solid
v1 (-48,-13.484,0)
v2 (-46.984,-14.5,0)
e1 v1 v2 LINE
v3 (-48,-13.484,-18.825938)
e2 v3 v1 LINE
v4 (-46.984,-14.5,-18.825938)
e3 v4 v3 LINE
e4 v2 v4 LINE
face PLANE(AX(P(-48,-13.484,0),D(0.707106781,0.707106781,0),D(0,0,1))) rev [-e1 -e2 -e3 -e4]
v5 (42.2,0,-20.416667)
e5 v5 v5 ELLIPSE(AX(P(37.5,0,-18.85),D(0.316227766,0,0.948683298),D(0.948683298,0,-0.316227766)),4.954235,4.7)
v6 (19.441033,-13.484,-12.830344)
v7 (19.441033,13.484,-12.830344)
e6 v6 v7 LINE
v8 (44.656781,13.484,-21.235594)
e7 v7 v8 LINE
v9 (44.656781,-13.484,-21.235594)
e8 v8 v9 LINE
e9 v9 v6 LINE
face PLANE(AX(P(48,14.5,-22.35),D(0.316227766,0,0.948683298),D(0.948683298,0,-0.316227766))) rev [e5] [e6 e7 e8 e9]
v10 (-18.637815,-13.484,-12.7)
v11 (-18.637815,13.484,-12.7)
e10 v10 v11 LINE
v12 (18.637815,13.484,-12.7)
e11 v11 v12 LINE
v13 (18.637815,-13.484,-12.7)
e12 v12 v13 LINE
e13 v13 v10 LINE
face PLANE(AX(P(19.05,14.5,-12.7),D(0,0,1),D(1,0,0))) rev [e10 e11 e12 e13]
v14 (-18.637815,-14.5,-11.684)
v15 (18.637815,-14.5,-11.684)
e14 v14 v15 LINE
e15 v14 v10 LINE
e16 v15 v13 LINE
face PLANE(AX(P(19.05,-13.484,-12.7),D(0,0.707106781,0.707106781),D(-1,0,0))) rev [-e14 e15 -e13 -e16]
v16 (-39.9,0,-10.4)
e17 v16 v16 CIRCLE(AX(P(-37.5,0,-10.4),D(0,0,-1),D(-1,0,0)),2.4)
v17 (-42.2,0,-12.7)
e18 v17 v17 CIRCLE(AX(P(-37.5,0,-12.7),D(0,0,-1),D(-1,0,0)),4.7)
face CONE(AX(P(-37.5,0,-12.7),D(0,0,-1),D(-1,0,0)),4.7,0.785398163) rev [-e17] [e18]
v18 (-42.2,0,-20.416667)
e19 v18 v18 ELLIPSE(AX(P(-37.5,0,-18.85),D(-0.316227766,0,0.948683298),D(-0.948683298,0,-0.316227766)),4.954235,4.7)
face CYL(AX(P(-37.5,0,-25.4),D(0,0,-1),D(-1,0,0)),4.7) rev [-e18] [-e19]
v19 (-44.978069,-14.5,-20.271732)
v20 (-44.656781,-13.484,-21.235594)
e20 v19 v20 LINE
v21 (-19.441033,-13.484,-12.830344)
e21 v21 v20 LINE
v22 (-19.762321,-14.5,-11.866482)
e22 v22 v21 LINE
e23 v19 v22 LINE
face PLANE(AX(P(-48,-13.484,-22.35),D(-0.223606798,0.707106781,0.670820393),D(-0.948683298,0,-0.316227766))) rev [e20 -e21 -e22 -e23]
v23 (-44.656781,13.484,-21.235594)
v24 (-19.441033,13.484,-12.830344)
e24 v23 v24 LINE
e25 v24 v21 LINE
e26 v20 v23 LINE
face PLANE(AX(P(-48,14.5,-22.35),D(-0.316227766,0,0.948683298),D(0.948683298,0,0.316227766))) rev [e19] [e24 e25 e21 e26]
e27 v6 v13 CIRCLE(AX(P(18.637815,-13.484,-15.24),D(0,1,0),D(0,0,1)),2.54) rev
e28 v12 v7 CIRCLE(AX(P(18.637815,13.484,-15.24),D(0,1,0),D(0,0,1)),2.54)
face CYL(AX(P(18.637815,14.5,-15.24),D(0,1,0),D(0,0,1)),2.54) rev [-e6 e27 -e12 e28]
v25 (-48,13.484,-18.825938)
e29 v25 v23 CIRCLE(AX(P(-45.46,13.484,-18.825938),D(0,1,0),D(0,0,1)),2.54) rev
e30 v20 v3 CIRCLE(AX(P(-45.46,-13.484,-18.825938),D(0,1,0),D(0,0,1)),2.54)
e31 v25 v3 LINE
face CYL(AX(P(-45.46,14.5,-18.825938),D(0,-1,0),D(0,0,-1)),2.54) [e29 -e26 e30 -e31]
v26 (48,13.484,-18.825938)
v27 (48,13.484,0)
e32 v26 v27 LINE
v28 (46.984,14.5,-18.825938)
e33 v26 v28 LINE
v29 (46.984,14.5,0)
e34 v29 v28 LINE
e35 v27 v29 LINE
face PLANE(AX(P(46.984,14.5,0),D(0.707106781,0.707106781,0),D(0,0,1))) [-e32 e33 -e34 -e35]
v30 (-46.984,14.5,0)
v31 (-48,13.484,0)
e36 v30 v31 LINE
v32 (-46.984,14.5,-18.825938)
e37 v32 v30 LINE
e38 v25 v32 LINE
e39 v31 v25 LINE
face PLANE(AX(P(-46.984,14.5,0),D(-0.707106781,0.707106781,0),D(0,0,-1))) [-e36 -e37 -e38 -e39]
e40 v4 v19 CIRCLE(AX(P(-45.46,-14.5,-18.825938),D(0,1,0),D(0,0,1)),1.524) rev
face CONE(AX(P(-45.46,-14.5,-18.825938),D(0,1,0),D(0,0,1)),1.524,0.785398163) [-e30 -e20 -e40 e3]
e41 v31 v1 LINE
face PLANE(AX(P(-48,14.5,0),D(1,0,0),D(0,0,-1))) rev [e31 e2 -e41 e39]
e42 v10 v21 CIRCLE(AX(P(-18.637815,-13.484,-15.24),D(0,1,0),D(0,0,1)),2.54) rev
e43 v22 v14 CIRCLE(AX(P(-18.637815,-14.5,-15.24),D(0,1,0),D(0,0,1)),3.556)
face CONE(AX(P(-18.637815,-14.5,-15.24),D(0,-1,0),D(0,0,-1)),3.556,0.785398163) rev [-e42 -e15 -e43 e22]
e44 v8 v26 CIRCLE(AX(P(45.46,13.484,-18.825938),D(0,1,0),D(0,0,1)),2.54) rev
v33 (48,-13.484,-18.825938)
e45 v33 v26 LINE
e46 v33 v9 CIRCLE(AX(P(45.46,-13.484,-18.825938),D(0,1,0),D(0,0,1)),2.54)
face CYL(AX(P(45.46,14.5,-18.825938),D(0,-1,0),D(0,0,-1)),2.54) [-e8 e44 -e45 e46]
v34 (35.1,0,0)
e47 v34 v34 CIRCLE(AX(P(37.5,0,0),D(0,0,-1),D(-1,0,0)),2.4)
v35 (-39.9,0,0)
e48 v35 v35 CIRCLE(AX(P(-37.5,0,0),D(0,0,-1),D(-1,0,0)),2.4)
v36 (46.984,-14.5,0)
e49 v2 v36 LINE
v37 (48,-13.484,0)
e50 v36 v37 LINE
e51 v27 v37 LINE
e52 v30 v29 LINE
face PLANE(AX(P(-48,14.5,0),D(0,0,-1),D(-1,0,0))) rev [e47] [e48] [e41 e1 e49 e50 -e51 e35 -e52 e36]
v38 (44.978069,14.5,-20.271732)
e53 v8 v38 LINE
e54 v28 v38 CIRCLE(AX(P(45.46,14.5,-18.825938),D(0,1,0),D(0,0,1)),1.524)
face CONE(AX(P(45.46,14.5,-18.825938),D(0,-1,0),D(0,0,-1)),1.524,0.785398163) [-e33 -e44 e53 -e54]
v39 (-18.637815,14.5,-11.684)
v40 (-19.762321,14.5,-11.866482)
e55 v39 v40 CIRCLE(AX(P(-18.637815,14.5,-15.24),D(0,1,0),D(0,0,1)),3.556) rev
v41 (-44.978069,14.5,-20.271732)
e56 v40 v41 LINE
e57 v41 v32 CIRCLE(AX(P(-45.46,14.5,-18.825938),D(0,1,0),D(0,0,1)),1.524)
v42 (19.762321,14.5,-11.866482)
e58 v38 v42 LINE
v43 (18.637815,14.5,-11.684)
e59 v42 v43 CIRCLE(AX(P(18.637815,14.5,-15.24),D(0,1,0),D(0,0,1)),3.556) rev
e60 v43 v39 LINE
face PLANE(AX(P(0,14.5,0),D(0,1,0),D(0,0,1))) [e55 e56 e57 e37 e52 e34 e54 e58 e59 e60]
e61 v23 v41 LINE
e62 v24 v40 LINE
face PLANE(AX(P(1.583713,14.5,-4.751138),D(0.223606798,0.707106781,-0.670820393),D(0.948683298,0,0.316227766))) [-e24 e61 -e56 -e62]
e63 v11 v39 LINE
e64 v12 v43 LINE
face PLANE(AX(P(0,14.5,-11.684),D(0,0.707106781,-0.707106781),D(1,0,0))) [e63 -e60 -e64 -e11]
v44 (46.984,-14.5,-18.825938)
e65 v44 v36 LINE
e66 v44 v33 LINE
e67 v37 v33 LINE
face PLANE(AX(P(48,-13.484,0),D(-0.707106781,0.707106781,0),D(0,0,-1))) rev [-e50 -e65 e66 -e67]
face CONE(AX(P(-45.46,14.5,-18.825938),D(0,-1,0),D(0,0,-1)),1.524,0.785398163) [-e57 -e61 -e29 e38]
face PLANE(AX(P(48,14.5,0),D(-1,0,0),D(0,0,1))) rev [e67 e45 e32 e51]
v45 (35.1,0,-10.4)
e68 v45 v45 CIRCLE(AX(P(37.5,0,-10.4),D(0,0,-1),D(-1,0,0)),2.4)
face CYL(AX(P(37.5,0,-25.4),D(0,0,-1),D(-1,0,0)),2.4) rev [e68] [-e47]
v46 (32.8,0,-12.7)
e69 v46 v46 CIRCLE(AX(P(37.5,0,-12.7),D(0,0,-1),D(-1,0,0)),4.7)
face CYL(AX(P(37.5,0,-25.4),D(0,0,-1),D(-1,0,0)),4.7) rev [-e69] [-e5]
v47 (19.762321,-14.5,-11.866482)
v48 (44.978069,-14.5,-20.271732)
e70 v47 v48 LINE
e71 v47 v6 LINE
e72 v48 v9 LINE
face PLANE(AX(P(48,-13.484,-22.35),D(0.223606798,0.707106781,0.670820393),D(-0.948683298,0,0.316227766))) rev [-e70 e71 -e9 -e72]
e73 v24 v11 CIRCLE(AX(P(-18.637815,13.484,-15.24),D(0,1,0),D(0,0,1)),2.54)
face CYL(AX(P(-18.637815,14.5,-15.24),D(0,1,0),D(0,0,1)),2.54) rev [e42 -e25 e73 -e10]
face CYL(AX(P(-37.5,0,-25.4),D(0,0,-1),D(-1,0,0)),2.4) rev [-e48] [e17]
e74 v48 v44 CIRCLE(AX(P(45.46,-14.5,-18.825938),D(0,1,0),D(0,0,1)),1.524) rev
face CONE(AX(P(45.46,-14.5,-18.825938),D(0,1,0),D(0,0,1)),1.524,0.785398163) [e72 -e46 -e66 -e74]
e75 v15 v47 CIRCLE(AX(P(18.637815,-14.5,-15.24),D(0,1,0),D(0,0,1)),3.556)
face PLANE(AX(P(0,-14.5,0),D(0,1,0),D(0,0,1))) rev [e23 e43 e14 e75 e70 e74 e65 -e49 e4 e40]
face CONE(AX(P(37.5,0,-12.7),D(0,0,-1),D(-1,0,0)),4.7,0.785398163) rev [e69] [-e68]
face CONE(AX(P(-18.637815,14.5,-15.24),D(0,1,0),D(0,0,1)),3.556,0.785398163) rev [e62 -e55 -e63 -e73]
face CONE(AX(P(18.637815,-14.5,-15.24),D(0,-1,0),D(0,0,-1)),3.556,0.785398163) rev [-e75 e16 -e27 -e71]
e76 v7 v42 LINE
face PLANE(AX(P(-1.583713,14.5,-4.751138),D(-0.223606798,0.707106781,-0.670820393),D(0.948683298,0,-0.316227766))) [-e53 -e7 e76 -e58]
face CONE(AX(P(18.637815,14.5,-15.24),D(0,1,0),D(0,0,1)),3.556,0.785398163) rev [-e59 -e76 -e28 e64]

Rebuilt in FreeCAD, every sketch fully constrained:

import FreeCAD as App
import Part
import Sketcher

V = App.Vector
Q = App.Units.Quantity


def edges_at(feature, points):
    """Names of the edges that pass closest to the given points."""
    edges = feature.Shape.Edges
    near = lambda p: min(range(len(edges)), key=lambda i: edges[i].distToShape(Part.Vertex(*p))[0])
    return sorted({f"Edge{near(p) + 1}" for p in points})

doc = App.newDocument("Part")
body = doc.addObject("PartDesign::Body", "Body")

# Sketch on XZ plane
sketch1 = body.newObject("Sketcher::SketchObject", "Sketch")
sketch1.AttachmentSupport = (doc.getObject("XZ_Plane"), [""])
sketch1.MapMode = "FlatFace"
sketch1.addGeometry([
    Part.LineSegment(V(-48, 0, 0), V(48, 0, 0)),  # 0
    Part.LineSegment(V(48, 0, 0), V(48, -22, 0)),  # 1
    Part.LineSegment(V(48, -22, 0), V(19, -13, 0)),  # 2
    Part.LineSegment(V(19, -13, 0), V(-19, -13, 0)),  # 3
    Part.LineSegment(V(-19, -13, 0), V(-48, -22, 0)),  # 4
    Part.LineSegment(V(-48, -22, 0), V(-48, 0, 0)),  # 5
], False)
sketch1.addConstraint([
    Sketcher.Constraint("Coincident", 0, 2, 1, 1),
    Sketcher.Constraint("Coincident", 1, 2, 2, 1),
    Sketcher.Constraint("Coincident", 2, 2, 3, 1),
    Sketcher.Constraint("Coincident", 3, 2, 4, 1),
    Sketcher.Constraint("Coincident", 4, 2, 5, 1),
    Sketcher.Constraint("Coincident", 5, 2, 0, 1),
    Sketcher.Constraint("Horizontal", 0),
    Sketcher.Constraint("Vertical", 1),
    Sketcher.Constraint("Horizontal", 3),
    Sketcher.Constraint("Vertical", 5),
    Sketcher.Constraint("Symmetric", 0, 2, 5, 2, -1, 1),
    Sketcher.Constraint("Horizontal", 1, 2, 4, 2),
    Sketcher.Constraint("Equal", 2, 4),
    Sketcher.Constraint("DistanceX", 0, 1, 0, 2, Q("96 mm")),
    Sketcher.Constraint("DistanceX", 3, 2, 3, 1, Q("38.1 mm")),
    Sketcher.Constraint("DistanceY", 1, 2, 1, 1, Q("22.35 mm")),
    Sketcher.Constraint("DistanceY", 2, 2, -1, 1, Q("12.7 mm")),
])
pad1 = body.newObject("PartDesign::Pad", "Pad")
pad1.Profile = sketch1
pad1.Length = 29
pad1.Midplane = True

# Sketch on YZ plane
sketch2 = body.newObject("Sketcher::SketchObject", "Sketch001")
sketch2.AttachmentSupport = (doc.getObject("YZ_Plane"), [""])
sketch2.MapMode = "FlatFace"
sketch2.AttachmentOffset = App.Placement(V(0, 0, -37.5), App.Rotation())
sketch2.addGeometry([
    Part.LineSegment(V(0, 0, 0), V(0, -25.4, 0)),  # 0
    Part.LineSegment(V(0, -25.4, 0), V(4.7, -25.4, 0)),  # 1
    Part.LineSegment(V(4.7, -25.4, 0), V(4.7, -12.7, 0)),  # 2
    Part.LineSegment(V(4.7, -12.7, 0), V(2.4, -10.4, 0)),  # 3
    Part.LineSegment(V(2.4, -10.4, 0), V(2.4, 0, 0)),  # 4
    Part.LineSegment(V(2.4, 0, 0), V(0, 0, 0)),  # 5
], False)
sketch2.addConstraint([
    Sketcher.Constraint("Coincident", 0, 2, 1, 1),
    Sketcher.Constraint("Coincident", 1, 2, 2, 1),
    Sketcher.Constraint("Coincident", 2, 2, 3, 1),
    Sketcher.Constraint("Coincident", 3, 2, 4, 1),
    Sketcher.Constraint("Coincident", 4, 2, 5, 1),
    Sketcher.Constraint("Coincident", 5, 2, 0, 1),
    Sketcher.Constraint("Vertical", 0),
    Sketcher.Constraint("Horizontal", 1),
    Sketcher.Constraint("Vertical", 2),
    Sketcher.Constraint("Vertical", 4),
    Sketcher.Constraint("Horizontal", 5),
    Sketcher.Constraint("Coincident", 5, 2, -1, 1),
    Sketcher.Constraint("Angle", 3, Q("135 deg")),
    Sketcher.Constraint("DistanceX", 1, 1, 1, 2, Q("4.7 mm")),
    Sketcher.Constraint("DistanceX", 5, 2, 5, 1, Q("2.4 mm")),
    Sketcher.Constraint("DistanceY", 0, 2, 0, 1, Q("25.4 mm")),
    Sketcher.Constraint("DistanceY", 2, 1, 2, 2, Q("12.7 mm")),
])
groove = body.newObject("PartDesign::Groove", "Groove")
groove.Profile = sketch2
groove.ReferenceAxis = (sketch2, ["V_Axis"])
groove.Angle = 360
doc.recompute()

linearpattern = body.newObject("PartDesign::LinearPattern", "LinearPattern")
linearpattern.Originals = [groove]
linearpattern.Direction = (doc.getObject("X_Axis"), [""])
linearpattern.Mode = "offset"
linearpattern.Offset = 75
linearpattern.Occurrences = 2
body.Tip = linearpattern
doc.recompute()

fillet = body.newObject("PartDesign::Fillet", "Fillet")
fillet.Base = (linearpattern, edges_at(linearpattern, [
    (-48, 0, -22.35),
    (-19.05, 0, -12.7),
    (19.05, 0, -12.7),
    (48, 0, -22.35),
]))
fillet.Radius = 2.54
doc.recompute()

chamfer = body.newObject("PartDesign::Chamfer", "Chamfer")
chamfer.Base = (fillet, edges_at(fillet, [
    (-48, -14.5, -9.413),
    (-48, 14.5, -9.413),
    (-32.049, -14.5, -17.033),
    (0, -14.5, -12.7),
    (32.049, -14.5, -17.033),
    (46.945, -14.5, -20.886),
    (-46.945, -14.5, -20.886),
    (-32.049, 14.5, -17.033),
    (32.049, 14.5, -17.033),
    (0, 14.5, -12.7),
    (46.945, 14.5, -20.886),
    (-46.945, 14.5, -20.886),
    (-19.045, -14.5, -12.733),
    (-19.045, 14.5, -12.733),
    (19.045, -14.5, -12.733),
    (19.045, 14.5, -12.733),
    (48, 14.5, -9.413),
    (48, -14.5, -9.413),
]))
chamfer.Size = 1.016

doc.recompute()
